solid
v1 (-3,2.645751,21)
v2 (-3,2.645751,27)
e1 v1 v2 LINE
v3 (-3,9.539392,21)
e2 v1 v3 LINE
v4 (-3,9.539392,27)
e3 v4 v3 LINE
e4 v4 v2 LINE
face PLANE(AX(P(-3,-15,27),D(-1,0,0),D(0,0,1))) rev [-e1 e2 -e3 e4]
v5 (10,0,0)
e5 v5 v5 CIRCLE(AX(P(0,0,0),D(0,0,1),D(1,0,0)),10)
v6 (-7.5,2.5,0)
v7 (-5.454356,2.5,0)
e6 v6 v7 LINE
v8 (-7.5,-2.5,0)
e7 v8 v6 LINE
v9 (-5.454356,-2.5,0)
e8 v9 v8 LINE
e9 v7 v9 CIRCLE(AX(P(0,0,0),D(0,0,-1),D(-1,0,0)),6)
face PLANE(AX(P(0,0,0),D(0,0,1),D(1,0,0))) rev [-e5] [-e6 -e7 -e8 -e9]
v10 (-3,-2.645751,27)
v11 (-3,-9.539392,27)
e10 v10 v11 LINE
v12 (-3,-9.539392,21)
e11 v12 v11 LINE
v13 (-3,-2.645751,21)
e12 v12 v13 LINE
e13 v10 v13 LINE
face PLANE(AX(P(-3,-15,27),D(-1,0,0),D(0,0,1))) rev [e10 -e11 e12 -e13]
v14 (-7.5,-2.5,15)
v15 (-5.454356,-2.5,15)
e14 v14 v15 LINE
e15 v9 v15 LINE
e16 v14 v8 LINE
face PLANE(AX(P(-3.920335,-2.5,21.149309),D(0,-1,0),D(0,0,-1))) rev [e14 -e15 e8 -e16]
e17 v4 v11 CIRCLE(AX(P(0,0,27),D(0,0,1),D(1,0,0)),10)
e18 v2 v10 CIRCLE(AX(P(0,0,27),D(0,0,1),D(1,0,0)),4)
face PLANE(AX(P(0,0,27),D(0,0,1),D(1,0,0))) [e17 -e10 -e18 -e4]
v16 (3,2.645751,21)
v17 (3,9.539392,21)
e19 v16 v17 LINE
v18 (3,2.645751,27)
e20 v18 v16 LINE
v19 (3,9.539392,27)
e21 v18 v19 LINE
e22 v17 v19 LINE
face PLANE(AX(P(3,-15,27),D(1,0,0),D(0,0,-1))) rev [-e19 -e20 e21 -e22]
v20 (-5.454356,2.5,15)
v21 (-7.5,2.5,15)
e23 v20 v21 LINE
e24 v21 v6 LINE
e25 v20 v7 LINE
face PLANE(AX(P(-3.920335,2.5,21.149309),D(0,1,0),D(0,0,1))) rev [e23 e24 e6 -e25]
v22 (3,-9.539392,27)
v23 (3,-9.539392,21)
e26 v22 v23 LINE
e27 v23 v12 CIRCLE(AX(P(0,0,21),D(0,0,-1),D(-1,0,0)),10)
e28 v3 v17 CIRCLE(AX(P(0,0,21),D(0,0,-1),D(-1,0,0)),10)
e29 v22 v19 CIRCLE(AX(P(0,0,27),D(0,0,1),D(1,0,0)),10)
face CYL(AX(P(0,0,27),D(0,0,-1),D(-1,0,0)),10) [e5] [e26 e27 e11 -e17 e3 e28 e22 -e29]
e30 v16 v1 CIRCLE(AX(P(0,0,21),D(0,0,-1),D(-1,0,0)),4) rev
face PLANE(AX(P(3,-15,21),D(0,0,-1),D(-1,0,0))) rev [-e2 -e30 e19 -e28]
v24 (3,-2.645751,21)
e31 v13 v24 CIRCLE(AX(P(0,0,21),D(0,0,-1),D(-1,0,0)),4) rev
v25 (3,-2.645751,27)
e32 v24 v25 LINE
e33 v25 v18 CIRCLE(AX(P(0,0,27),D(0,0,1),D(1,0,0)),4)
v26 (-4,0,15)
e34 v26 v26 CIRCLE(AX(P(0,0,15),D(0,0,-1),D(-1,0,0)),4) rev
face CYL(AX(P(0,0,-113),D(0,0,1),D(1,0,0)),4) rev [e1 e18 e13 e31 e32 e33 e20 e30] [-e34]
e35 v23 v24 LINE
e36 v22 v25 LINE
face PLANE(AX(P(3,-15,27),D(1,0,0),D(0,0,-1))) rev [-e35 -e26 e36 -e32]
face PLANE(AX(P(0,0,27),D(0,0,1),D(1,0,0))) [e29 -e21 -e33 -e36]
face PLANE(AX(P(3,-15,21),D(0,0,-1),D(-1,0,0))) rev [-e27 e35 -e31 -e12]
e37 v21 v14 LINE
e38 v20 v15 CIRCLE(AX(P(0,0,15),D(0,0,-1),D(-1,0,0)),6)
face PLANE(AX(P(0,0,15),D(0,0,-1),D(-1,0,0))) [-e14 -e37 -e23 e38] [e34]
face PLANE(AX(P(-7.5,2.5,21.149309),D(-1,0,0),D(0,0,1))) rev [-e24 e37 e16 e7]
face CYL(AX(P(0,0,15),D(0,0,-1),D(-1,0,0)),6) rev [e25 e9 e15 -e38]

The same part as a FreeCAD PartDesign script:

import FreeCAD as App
import Part
import Sketcher


def add_polygon(sketch, points):
    """Adds a closed chain of lines whose ends are joined by coincident constraints."""
    first, n = sketch.GeometryCount, len(points)
    for a, b in zip(points, points[1:] + points[:1]):
        sketch.addGeometry(Part.LineSegment(App.Vector(*a, 0), App.Vector(*b, 0)), False)
    for i in range(n):
        sketch.addConstraint(Sketcher.Constraint("Coincident", first + i, 2, first + (i + 1) % n, 1))

doc = App.newDocument("Part")
body = doc.addObject("PartDesign::Body", "Body")

# Sketch on XY plane
sketch1 = body.newObject("Sketcher::SketchObject", "Sketch")
sketch1.AttachmentSupport = (doc.getObject("XY_Plane"), [""])
sketch1.MapMode = "FlatFace"
sketch1.addGeometry(Part.Circle(App.Vector(0, 0, 0), App.Vector(0, 0, 1), 10), False)
sketch1.addConstraint([
    Sketcher.Constraint("Coincident", 0, 3, -1, 1),
    Sketcher.Constraint("Diameter", 0, 20.0),
])
pad1 = body.newObject("PartDesign::Pad", "Pad")
pad1.Profile = sketch1
pad1.Length = 27

# Sketch on XY plane
sketch2 = body.newObject("Sketcher::SketchObject", "Sketch001")
sketch2.AttachmentSupport = (doc.getObject("XY_Plane"), [""])
sketch2.MapMode = "FlatFace"
sketch2.AttachmentOffset = App.Placement(App.Vector(0, 0, 27), App.Rotation())
sketch2.addGeometry(Part.Circle(App.Vector(0, 0, 0), App.Vector(0, 0, 1), 4), False)
sketch2.addConstraint([
    Sketcher.Constraint("Coincident", 0, 3, -1, 1),
    Sketcher.Constraint("Diameter", 0, 8.0),
])
pocket1 = body.newObject("PartDesign::Pocket", "Pocket")
pocket1.Profile = sketch2
pocket1.Length = 140

# Sketch on XY plane
sketch3 = body.newObject("Sketcher::SketchObject", "Sketch002")
sketch3.AttachmentSupport = (doc.getObject("XY_Plane"), [""])
sketch3.MapMode = "FlatFace"
sketch3.addGeometry(Part.Circle(App.Vector(0, 0, 0), App.Vector(0, 0, 1), 6), False)
sketch3.addConstraint([
    Sketcher.Constraint("Coincident", 0, 3, -1, 1),
    Sketcher.Constraint("Diameter", 0, 12.0),
])
pocket2 = body.newObject("PartDesign::Pocket", "Pocket001")
pocket2.Profile = sketch3
pocket2.Length = 15
pocket2.Reversed = True

# Sketch on XZ plane
sketch4 = body.newObject("Sketcher::SketchObject", "Sketch003")
sketch4.AttachmentSupport = (doc.getObject("XZ_Plane"), [""])
sketch4.MapMode = "FlatFace"
add_polygon(sketch4, [(-3, 21), (-3, 27), (3, 27), (3, 21)])  # lines 0-3
sketch4.addConstraint([
    Sketcher.Constraint("Vertical", 0),
    Sketcher.Constraint("Horizontal", 1),
    Sketcher.Constraint("Vertical", 2),
    Sketcher.Constraint("Horizontal", 3),
    Sketcher.Constraint("Equal", 3, 0),
    Sketcher.Constraint("DistanceX", 1, 1, 1, 2, 6.0),
    Sketcher.Constraint("DistanceX", 0, 2, -1, 1, 3.0),
    Sketcher.Constraint("DistanceY", -1, 1, 0, 2, 27.0),
])
pocket3 = body.newObject("PartDesign::Pocket", "Pocket002")
pocket3.Profile = sketch4
pocket3.Length = 30
pocket3.Midplane = True

# Sketch on XY plane
sketch5 = body.newObject("Sketcher::SketchObject", "Sketch004")
sketch5.AttachmentSupport = (doc.getObject("XY_Plane"), [""])
sketch5.MapMode = "FlatFace"
add_polygon(sketch5, [(-3.9, 2.5), (-3.9, -2.5), (-7.5, -2.5), (-7.5, 2.5)])  # lines 0-3
sketch5.addConstraint([
    Sketcher.Constraint("Vertical", 0),
    Sketcher.Constraint("Horizontal", 1),
    Sketcher.Constraint("Vertical", 2),
    Sketcher.Constraint("Horizontal", 3),
    Sketcher.Constraint("DistanceY", 0, 2, 0, 1, 5.0),
    Sketcher.Constraint("DistanceY", 0, 2, -1, 1, 2.5),
    Sketcher.Constraint("DistanceX", 1, 2, -1, 1, 7.5),
    Sketcher.Constraint("DistanceX", 1, 2, 1, 1, 3.579665),
])
pocket4 = body.newObject("PartDesign::Pocket", "Pocket003")
pocket4.Profile = sketch5
pocket4.Length = 15
pocket4.Reversed = True

doc.recompute()
